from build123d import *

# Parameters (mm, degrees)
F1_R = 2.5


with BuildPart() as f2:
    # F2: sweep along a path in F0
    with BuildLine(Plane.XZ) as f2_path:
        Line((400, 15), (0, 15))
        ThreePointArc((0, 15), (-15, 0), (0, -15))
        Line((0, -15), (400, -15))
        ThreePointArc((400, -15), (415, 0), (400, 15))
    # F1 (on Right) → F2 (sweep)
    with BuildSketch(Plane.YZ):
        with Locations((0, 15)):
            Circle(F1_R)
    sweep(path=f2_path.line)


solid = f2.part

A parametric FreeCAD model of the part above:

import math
import FreeCAD as App
import Part
import Sketcher
Q = App.Units.Quantity

doc = App.newDocument("Part")
body = doc.addObject("PartDesign::Body", "Body")

sketch1 = body.newObject("Sketcher::SketchObject", "Sketch")
sketch1.AttachmentSupport = (doc.getObject("YZ_Plane"), [""])
sketch1.MapMode = "FlatFace"
sketch1.addGeometry(Part.Circle(App.Vector(0, 15, 0), App.Vector(0, 0, 1), 2.5), False)
sketch1.addConstraint([
    Sketcher.Constraint("PointOnObject", 0, 3, -2),
    Sketcher.Constraint("Diameter", 0, Q("5 mm")),
    Sketcher.Constraint("DistanceY", -1, 1, 0, 3, Q("15 mm")),
])

sketch2 = body.newObject("Sketcher::SketchObject", "Sketch001")
sketch2.AttachmentSupport = (doc.getObject("XZ_Plane"), [""])
sketch2.MapMode = "FlatFace"
sketch2.addGeometry([
    Part.LineSegment(App.Vector(400, 15, 0), App.Vector(0, 15, 0)),
    Part.ArcOfCircle(Part.Circle(App.Vector(0, 0, 0), App.Vector(0, 0, 1), 15), math.radians(90), math.radians(270)),
    Part.LineSegment(App.Vector(0, -15, 0), App.Vector(400, -15, 0)),
    Part.ArcOfCircle(Part.Circle(App.Vector(400, 0, 0), App.Vector(0, 0, 1), 15), math.radians(-90), math.radians(90)),
], False)
sketch2.addConstraint([
    Sketcher.Constraint("Tangent", 0, 2, 1, 1),
    Sketcher.Constraint("Tangent", 1, 2, 2, 1),
    Sketcher.Constraint("Tangent", 2, 2, 3, 1),
    Sketcher.Constraint("Tangent", 3, 2, 0, 1),
    Sketcher.Constraint("Horizontal", 0),
    Sketcher.Constraint("Horizontal", 2),
    Sketcher.Constraint("Coincident", 1, 3, -1, 1),
    Sketcher.Constraint("Radius", 1, Q("15 mm")),
    Sketcher.Constraint("DistanceX", 0, 2, 0, 1, Q("400 mm")),
])
doc.recompute()

additivepipe = body.newObject("PartDesign::AdditivePipe", "AdditivePipe")
additivepipe.Profile = sketch1
additivepipe.Spine = (sketch2, ["Edge1", "Edge2", "Edge3", "Edge4"])

doc.recompute()
